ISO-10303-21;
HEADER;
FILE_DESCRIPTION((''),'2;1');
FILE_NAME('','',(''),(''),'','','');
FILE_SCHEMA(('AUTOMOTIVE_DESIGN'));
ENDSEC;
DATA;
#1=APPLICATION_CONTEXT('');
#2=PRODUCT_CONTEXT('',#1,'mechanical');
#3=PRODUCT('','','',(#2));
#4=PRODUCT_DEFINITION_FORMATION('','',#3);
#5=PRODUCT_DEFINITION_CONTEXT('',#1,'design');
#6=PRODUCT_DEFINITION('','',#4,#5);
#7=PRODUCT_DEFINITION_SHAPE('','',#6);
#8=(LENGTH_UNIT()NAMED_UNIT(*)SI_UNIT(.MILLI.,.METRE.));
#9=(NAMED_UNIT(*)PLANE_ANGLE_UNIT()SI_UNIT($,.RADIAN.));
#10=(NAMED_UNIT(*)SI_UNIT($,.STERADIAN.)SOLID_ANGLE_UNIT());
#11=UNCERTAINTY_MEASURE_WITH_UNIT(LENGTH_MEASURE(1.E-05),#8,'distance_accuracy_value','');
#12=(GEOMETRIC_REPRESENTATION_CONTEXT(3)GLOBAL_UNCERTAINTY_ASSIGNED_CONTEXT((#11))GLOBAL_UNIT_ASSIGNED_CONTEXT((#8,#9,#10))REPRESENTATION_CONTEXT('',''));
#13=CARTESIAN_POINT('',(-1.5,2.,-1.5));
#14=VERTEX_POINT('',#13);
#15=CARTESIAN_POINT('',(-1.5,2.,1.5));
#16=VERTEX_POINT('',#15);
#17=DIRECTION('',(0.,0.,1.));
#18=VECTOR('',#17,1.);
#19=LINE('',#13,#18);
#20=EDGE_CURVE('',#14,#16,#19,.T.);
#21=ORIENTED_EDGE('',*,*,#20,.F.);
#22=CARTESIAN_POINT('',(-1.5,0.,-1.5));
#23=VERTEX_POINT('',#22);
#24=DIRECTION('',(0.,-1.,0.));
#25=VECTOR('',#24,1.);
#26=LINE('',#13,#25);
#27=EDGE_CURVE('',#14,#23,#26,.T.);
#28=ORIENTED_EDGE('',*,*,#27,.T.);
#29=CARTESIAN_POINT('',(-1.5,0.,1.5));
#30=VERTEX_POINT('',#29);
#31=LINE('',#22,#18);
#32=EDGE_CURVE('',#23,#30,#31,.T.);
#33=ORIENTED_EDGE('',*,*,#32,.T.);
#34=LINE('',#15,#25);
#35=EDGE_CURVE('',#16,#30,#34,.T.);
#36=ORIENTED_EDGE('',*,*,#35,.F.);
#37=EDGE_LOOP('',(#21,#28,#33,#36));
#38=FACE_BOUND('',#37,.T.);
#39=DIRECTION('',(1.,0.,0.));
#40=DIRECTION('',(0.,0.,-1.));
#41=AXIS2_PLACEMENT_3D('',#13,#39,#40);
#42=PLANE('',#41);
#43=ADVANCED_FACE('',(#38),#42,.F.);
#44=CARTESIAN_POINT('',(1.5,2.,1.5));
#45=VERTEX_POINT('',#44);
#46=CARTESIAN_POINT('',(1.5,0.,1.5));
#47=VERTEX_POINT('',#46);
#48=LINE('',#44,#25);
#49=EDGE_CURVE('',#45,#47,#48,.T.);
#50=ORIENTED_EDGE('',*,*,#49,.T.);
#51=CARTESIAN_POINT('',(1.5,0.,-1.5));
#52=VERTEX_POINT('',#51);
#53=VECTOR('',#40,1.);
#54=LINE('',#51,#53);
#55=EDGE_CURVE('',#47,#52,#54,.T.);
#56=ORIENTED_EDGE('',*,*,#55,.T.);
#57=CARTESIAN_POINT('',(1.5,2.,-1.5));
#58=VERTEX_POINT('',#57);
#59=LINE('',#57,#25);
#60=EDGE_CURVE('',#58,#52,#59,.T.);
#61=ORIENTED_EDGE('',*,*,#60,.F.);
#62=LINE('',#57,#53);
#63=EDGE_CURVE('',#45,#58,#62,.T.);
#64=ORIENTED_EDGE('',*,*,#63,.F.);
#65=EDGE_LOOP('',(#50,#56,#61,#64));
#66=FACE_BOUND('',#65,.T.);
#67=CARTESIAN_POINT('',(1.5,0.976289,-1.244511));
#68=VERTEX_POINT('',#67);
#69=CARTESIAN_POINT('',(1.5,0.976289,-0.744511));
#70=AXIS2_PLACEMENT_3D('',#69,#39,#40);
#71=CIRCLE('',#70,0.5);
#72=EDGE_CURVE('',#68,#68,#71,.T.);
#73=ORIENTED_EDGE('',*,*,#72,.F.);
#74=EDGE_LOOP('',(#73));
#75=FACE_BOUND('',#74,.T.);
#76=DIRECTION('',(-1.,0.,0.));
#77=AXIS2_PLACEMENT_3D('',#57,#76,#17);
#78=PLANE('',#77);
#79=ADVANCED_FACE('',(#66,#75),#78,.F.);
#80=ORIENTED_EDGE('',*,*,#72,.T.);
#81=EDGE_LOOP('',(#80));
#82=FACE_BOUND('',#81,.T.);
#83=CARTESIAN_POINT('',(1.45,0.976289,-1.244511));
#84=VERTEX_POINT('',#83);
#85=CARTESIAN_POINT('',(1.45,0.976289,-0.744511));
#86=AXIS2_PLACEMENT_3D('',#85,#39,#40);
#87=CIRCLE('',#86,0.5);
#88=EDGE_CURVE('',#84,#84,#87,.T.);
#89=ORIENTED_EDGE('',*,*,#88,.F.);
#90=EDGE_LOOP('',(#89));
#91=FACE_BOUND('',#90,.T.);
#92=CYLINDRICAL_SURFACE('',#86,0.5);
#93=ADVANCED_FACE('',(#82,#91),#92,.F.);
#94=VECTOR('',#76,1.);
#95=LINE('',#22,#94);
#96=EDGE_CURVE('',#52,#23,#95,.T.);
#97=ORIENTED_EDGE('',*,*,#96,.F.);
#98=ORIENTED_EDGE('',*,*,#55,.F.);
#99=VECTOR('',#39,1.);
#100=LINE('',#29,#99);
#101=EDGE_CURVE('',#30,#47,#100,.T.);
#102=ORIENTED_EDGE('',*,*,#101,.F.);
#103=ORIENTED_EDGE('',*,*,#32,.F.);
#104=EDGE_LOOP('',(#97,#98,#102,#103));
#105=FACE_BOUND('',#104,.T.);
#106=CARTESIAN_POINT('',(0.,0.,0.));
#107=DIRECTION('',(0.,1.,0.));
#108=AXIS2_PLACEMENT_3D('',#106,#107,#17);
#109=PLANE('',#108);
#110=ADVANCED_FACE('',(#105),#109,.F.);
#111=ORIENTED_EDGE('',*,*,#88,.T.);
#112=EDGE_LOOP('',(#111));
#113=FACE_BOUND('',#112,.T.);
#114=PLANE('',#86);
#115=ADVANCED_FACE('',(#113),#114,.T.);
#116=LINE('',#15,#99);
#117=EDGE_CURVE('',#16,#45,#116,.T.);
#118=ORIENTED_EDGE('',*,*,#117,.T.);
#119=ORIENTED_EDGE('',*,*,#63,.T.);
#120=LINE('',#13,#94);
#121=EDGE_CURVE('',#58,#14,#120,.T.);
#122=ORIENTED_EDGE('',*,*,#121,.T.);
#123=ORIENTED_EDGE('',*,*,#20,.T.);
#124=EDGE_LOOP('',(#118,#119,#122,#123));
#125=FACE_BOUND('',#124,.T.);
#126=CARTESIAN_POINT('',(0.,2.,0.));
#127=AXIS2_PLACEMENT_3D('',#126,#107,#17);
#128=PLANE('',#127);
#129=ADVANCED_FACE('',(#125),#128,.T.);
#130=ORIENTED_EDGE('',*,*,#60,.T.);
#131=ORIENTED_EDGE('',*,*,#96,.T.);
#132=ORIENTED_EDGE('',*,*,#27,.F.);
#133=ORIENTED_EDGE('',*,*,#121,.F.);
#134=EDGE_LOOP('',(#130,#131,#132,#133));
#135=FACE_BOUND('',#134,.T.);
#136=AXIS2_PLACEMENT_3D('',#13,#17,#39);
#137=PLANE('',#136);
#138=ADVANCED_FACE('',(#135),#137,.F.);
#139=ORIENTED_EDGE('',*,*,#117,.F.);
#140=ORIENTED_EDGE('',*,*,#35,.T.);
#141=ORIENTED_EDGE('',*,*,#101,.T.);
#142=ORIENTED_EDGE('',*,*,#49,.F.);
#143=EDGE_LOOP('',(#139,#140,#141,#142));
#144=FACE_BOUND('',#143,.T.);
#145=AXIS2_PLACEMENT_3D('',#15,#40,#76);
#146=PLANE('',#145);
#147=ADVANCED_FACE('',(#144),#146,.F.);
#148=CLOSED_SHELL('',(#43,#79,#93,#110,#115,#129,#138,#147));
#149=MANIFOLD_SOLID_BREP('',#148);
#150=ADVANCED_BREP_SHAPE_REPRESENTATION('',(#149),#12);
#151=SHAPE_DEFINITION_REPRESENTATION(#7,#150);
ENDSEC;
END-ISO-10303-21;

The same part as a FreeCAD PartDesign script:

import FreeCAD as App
import Part
import Sketcher
Q = App.Units.Quantity

doc = App.newDocument("Part")
body = doc.addObject("PartDesign::Body", "Body")

sketch1 = body.newObject("Sketcher::SketchObject", "Sketch")
sketch1.AttachmentSupport = (doc.getObject("XZ_Plane"), [""])
sketch1.MapMode = "FlatFace"
sketch1.addGeometry([
    Part.LineSegment(App.Vector(-1.5, -1.5, 0), App.Vector(-1.5, 1.5, 0)),
    Part.LineSegment(App.Vector(-1.5, 1.5, 0), App.Vector(1.5, 1.5, 0)),
    Part.LineSegment(App.Vector(1.5, 1.5, 0), App.Vector(1.5, -1.5, 0)),
    Part.LineSegment(App.Vector(1.5, -1.5, 0), App.Vector(-1.5, -1.5, 0)),
], False)
sketch1.addConstraint([
    Sketcher.Constraint("Coincident", 0, 2, 1, 1),
    Sketcher.Constraint("Coincident", 1, 2, 2, 1),
    Sketcher.Constraint("Coincident", 2, 2, 3, 1),
    Sketcher.Constraint("Coincident", 3, 2, 0, 1),
    Sketcher.Constraint("Vertical", 0),
    Sketcher.Constraint("Horizontal", 1),
    Sketcher.Constraint("Vertical", 2),
    Sketcher.Constraint("Horizontal", 3),
    Sketcher.Constraint("Symmetric", 0, 2, 2, 2, -1, 1),
    Sketcher.Constraint("Equal", 3, 0),
    Sketcher.Constraint("DistanceX", 1, 1, 1, 2, Q("3 mm")),
])
pad1 = body.newObject("PartDesign::Pad", "Pad")
pad1.Profile = sketch1
pad1.Length = 2
pad1.Reversed = True

sketch2 = body.newObject("Sketcher::SketchObject", "Sketch001")
sketch2.AttachmentSupport = (doc.getObject("YZ_Plane"), [""])
sketch2.MapMode = "FlatFace"
sketch2.AttachmentOffset = App.Placement(App.Vector(0, 0, 1.5), App.Rotation())
sketch2.addGeometry(Part.Circle(App.Vector(1, -0.7, 0), App.Vector(0, 0, 1), 0.5), False)
sketch2.addConstraint([
    Sketcher.Constraint("Diameter", 0, Q("1 mm")),
    Sketcher.Constraint("DistanceX", -1, 1, 0, 3, Q("0.976289 mm")),
    Sketcher.Constraint("DistanceY", 0, 3, -1, 1, Q("0.744511 mm")),
])
pocket1 = body.newObject("PartDesign::Pocket", "Pocket")
pocket1.Profile = sketch2
pocket1.Length = 0.05

doc.recompute()
